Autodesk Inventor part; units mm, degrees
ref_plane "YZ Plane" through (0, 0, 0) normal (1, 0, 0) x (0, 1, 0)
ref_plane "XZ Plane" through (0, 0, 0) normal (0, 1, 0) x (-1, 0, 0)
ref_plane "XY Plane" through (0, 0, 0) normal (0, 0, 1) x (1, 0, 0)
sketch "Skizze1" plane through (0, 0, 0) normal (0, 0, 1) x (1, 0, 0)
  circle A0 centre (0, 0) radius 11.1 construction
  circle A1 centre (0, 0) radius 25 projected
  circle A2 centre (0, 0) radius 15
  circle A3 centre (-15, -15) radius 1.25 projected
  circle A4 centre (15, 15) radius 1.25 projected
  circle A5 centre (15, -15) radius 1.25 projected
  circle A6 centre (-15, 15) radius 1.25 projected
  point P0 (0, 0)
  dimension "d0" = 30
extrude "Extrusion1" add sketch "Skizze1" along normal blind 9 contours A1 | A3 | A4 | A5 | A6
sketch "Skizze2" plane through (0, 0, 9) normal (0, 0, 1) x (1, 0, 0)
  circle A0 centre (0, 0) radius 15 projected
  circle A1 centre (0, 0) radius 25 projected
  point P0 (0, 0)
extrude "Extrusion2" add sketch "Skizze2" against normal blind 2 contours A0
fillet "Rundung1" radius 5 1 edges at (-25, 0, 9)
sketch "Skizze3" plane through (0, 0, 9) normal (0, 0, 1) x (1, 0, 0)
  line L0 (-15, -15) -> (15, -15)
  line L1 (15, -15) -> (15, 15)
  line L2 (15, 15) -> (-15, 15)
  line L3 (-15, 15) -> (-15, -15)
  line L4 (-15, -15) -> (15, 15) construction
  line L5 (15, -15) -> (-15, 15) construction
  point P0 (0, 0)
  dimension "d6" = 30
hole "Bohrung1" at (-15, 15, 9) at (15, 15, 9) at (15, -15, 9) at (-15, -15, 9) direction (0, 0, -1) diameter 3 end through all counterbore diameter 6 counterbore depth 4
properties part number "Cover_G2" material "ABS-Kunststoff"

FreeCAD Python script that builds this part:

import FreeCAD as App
import Part
import Sketcher
from FreeCAD import Vector


def edges_at(feature, points):
    """Names of the edges that pass closest to the given points."""
    edges = feature.Shape.Edges
    near = lambda p: min(range(len(edges)), key=lambda i: edges[i].distToShape(Part.Vertex(*p))[0])
    return sorted({f"Edge{near(p) + 1}" for p in points})

doc = App.newDocument("Part")
params = doc.addObject("Spreadsheet::Sheet", "Params")
for row, (alias, value) in enumerate([
    ("sketch1_diameter", "30 mm"),
    ("sketch1_diameter2", "50 mm"),
    ("pad1_length", "9 mm"),
    ("sketch2_diameter", "30 mm"),
    ("pad2_length", "2 mm"),
    ("fillet_radius", "5 mm"),
    ("sketch3_diameter", "3 mm"),
    ("hole_diameter", "3 mm"),
    ("hole_cbore_diameter", "6 mm"),
    ("hole_cbore_depth", "4 mm"),
], start=1):
    params.set(f"A{row}", alias)
    params.set(f"B{row}", "=" + value)
    params.setAlias(f"B{row}", alias)

body = doc.addObject("PartDesign::Body", "Body")

sketch1 = body.newObject("Sketcher::SketchObject", "Sketch")
sketch1.AttachmentSupport = (doc.getObject("XY_Plane"), [""])
sketch1.MapMode = "FlatFace"
sketch1.addGeometry([
    Part.Circle(Vector(0, 0, 0), Vector(0, 0, 1), 25),
    Part.Circle(Vector(0, 0, 0), Vector(0, 0, 1), 15),
], False)
sketch1.addConstraint([
    Sketcher.Constraint("Coincident", 0, 3, -1, 1),
    Sketcher.Constraint("Coincident", 1, 3, -1, 1),
    Sketcher.Constraint("Diameter", 1, 30.0),
    Sketcher.Constraint("Diameter", 0, 50.0),
])
sketch1.setExpression("Constraints[2]", "Params.sketch1_diameter")
sketch1.setExpression("Constraints[3]", "Params.sketch1_diameter2")
pad1 = body.newObject("PartDesign::Pad", "Pad")
pad1.Profile = sketch1
pad1.setExpression("Length", "Params.pad1_length")

sketch2 = body.newObject("Sketcher::SketchObject", "Sketch001")
sketch2.AttachmentSupport = (doc.getObject("XY_Plane"), [""])
sketch2.MapMode = "FlatFace"
sketch2.AttachmentOffset = App.Placement(Vector(0, 0, 9), App.Rotation())
sketch2.addGeometry(Part.Circle(Vector(0, 0, 0), Vector(0, 0, 1), 15), False)
sketch2.addConstraint([
    Sketcher.Constraint("Coincident", 0, 3, -1, 1),
    Sketcher.Constraint("Diameter", 0, 30.0),
])
sketch2.setExpression("Constraints[1]", "Params.sketch2_diameter")
pad2 = body.newObject("PartDesign::Pad", "Pad001")
pad2.Profile = sketch2
pad2.setExpression("Length", "Params.pad2_length")
pad2.Reversed = True
doc.recompute()

fillet = body.newObject("PartDesign::Fillet", "Fillet")
fillet.Base = (pad2, edges_at(pad2, [(-25, 0, 9)]))
fillet.setExpression("Radius", "Params.fillet_radius")

sketch3 = body.newObject("Sketcher::SketchObject", "Sketch002")
sketch3.AttachmentSupport = (doc.getObject("XY_Plane"), [""])
sketch3.MapMode = "FlatFace"
sketch3.AttachmentOffset = App.Placement(Vector(0, 0, 9), App.Rotation())
sketch3.addGeometry([
    Part.Circle(Vector(-15, 15, 0), Vector(0, 0, 1), 1.5),
    Part.Circle(Vector(15, 15, 0), Vector(0, 0, 1), 1.5),
    Part.Circle(Vector(15, -15, 0), Vector(0, 0, 1), 1.5),
    Part.Circle(Vector(-15, -15, 0), Vector(0, 0, 1), 1.5),
], False)
sketch3.addConstraint([
    Sketcher.Constraint("Equal", 0, 1),
    Sketcher.Constraint("Equal", 1, 2),
    Sketcher.Constraint("Equal", 2, 3),
    Sketcher.Constraint("Symmetric", 0, 3, 2, 3, -1, 1),
    Sketcher.Constraint("Symmetric", 1, 3, 3, 3, -1, 1),
    Sketcher.Constraint("Symmetric", 0, 3, 1, 3, -2),
    Sketcher.Constraint("Diameter", 0, 3.0),
    Sketcher.Constraint("DistanceX", 0, 3, -1, 1, 15.0),
    Sketcher.Constraint("DistanceY", -1, 1, 0, 3, 15.0),
])
sketch3.setExpression("Constraints[6]", "Params.sketch3_diameter")
doc.recompute()
hole = body.newObject("PartDesign::Hole", "Hole")
hole.Profile = sketch3
hole.ThreadType = "None"
hole.setExpression("Diameter", "Params.hole_diameter")
hole.DepthType = "ThroughAll"
hole.HoleCutType = "Counterbore"
hole.setExpression("HoleCutDiameter", "Params.hole_cbore_diameter")
hole.setExpression("HoleCutDepth", "Params.hole_cbore_depth")

doc.recompute()
